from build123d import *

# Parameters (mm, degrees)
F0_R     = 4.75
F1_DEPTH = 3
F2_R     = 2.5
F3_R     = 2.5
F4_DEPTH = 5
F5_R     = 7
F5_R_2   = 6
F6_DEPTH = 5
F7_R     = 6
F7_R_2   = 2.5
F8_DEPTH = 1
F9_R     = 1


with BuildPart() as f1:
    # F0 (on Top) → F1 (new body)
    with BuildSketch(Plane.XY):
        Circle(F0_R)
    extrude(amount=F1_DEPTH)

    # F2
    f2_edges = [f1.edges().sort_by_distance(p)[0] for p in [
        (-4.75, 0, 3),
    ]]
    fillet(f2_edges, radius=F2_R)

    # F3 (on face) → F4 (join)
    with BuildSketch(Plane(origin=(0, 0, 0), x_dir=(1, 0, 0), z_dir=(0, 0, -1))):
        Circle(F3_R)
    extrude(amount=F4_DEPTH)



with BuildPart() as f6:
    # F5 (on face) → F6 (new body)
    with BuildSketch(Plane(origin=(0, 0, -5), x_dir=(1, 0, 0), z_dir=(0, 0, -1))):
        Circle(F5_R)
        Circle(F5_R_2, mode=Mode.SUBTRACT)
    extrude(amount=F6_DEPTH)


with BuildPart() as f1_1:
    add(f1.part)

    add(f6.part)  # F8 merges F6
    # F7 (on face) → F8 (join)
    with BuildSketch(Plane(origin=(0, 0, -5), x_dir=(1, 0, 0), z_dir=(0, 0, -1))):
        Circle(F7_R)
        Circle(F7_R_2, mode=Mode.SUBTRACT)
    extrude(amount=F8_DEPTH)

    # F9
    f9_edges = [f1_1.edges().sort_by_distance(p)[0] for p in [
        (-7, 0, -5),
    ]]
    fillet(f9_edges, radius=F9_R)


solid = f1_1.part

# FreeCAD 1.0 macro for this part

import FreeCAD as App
import Part
import Sketcher

V = App.Vector
Q = App.Units.Quantity


def edges_at(feature, points):
    """Names of the edges that pass closest to the given points."""
    edges = feature.Shape.Edges
    near = lambda p: min(range(len(edges)), key=lambda i: edges[i].distToShape(Part.Vertex(*p))[0])
    return sorted({f"Edge{near(p) + 1}" for p in points})

doc = App.newDocument("Part")
body = doc.addObject("PartDesign::Body", "Body")

sketch1 = doc.addObject("Sketcher::SketchObject", "Sketch")
body.addObject(sketch1)
sketch1.AttachmentSupport = (doc.XY_Plane, [""])
sketch1.MapMode = "FlatFace"
sketch1.addGeometry(Part.Circle(V(0, 0, 0), V(0, 0, 1), 4.8), False)
sketch1.addConstraint(Sketcher.Constraint("Coincident", 0, 3, -1, 1))
sketch1.addConstraint(Sketcher.Constraint("Diameter", 0, Q("9.5 mm")))
pad1 = doc.addObject("PartDesign::Pad", "Pad")
body.addObject(pad1)
pad1.Profile = sketch1
pad1.Length = 3
doc.recompute()

fillet = doc.addObject("PartDesign::Fillet", "Fillet")
body.addObject(fillet)
fillet.Base = (pad1, edges_at(pad1, [(-4.75, 0, 3)]))
fillet.Radius = 2.5

sketch2 = doc.addObject("Sketcher::SketchObject", "Sketch001")
body.addObject(sketch2)
sketch2.AttachmentSupport = (doc.XY_Plane, [""])
sketch2.MapMode = "FlatFace"
sketch2.addGeometry(Part.Circle(V(0, 0, 0), V(0, 0, 1), 2.5), False)
sketch2.addConstraint(Sketcher.Constraint("Coincident", 0, 3, -1, 1))
sketch2.addConstraint(Sketcher.Constraint("Diameter", 0, Q("5 mm")))
pad2 = doc.addObject("PartDesign::Pad", "Pad001")
body.addObject(pad2)
pad2.Profile = sketch2
pad2.Length = 5
pad2.Reversed = True
body2 = doc.addObject("PartDesign::Body", "Body001")

sketch3 = doc.addObject("Sketcher::SketchObject", "Sketch002")
body2.addObject(sketch3)
sketch3.AttachmentSupport = (doc.getObject("XY_Plane001"), [""])
sketch3.MapMode = "FlatFace"
sketch3.AttachmentOffset = App.Placement(V(0, 0, -5), App.Rotation())
sketch3.addGeometry(Part.Circle(V(0, 0, 0), V(0, 0, 1), 7), False)
sketch3.addGeometry(Part.Circle(V(0, 0, 0), V(0, 0, 1), 6), False)
sketch3.addConstraint(Sketcher.Constraint("Coincident", 0, 3, -1, 1))
sketch3.addConstraint(Sketcher.Constraint("Coincident", 1, 3, -1, 1))
sketch3.addConstraint(Sketcher.Constraint("Diameter", 0, Q("14 mm")))
sketch3.addConstraint(Sketcher.Constraint("Diameter", 1, Q("12 mm")))
pad3 = doc.addObject("PartDesign::Pad", "Pad002")
body2.addObject(pad3)
pad3.Profile = sketch3
pad3.Length = 5
pad3.Reversed = True
body.AllowCompound = True
doc.recompute()

boolean = doc.addObject("PartDesign::Boolean", "Boolean")
body.addObject(boolean)
boolean.Type = "Fuse"
boolean.addObjects([body2])

sketch4 = doc.addObject("Sketcher::SketchObject", "Sketch003")
body.addObject(sketch4)
sketch4.AttachmentSupport = (doc.XY_Plane, [""])
sketch4.MapMode = "FlatFace"
sketch4.AttachmentOffset = App.Placement(V(0, 0, -5), App.Rotation())
sketch4.addGeometry(Part.Circle(V(0, 0, 0), V(0, 0, 1), 6), False)
sketch4.addGeometry(Part.Circle(V(0, 0, 0), V(0, 0, 1), 2.5), False)
sketch4.addConstraint(Sketcher.Constraint("Coincident", 0, 3, -1, 1))
sketch4.addConstraint(Sketcher.Constraint("Coincident", 1, 3, -1, 1))
sketch4.addConstraint(Sketcher.Constraint("Diameter", 0, Q("12 mm")))
sketch4.addConstraint(Sketcher.Constraint("Diameter", 1, Q("5 mm")))
pad4 = doc.addObject("PartDesign::Pad", "Pad003")
body.addObject(pad4)
pad4.Profile = sketch4
pad4.Length = 1
pad4.Reversed = True
doc.recompute()

fillet2 = doc.addObject("PartDesign::Fillet", "Fillet001")
body.addObject(fillet2)
fillet2.Base = (pad4, edges_at(pad4, [(-7, 0, -5)]))
fillet2.Radius = 1

doc.recompute()
